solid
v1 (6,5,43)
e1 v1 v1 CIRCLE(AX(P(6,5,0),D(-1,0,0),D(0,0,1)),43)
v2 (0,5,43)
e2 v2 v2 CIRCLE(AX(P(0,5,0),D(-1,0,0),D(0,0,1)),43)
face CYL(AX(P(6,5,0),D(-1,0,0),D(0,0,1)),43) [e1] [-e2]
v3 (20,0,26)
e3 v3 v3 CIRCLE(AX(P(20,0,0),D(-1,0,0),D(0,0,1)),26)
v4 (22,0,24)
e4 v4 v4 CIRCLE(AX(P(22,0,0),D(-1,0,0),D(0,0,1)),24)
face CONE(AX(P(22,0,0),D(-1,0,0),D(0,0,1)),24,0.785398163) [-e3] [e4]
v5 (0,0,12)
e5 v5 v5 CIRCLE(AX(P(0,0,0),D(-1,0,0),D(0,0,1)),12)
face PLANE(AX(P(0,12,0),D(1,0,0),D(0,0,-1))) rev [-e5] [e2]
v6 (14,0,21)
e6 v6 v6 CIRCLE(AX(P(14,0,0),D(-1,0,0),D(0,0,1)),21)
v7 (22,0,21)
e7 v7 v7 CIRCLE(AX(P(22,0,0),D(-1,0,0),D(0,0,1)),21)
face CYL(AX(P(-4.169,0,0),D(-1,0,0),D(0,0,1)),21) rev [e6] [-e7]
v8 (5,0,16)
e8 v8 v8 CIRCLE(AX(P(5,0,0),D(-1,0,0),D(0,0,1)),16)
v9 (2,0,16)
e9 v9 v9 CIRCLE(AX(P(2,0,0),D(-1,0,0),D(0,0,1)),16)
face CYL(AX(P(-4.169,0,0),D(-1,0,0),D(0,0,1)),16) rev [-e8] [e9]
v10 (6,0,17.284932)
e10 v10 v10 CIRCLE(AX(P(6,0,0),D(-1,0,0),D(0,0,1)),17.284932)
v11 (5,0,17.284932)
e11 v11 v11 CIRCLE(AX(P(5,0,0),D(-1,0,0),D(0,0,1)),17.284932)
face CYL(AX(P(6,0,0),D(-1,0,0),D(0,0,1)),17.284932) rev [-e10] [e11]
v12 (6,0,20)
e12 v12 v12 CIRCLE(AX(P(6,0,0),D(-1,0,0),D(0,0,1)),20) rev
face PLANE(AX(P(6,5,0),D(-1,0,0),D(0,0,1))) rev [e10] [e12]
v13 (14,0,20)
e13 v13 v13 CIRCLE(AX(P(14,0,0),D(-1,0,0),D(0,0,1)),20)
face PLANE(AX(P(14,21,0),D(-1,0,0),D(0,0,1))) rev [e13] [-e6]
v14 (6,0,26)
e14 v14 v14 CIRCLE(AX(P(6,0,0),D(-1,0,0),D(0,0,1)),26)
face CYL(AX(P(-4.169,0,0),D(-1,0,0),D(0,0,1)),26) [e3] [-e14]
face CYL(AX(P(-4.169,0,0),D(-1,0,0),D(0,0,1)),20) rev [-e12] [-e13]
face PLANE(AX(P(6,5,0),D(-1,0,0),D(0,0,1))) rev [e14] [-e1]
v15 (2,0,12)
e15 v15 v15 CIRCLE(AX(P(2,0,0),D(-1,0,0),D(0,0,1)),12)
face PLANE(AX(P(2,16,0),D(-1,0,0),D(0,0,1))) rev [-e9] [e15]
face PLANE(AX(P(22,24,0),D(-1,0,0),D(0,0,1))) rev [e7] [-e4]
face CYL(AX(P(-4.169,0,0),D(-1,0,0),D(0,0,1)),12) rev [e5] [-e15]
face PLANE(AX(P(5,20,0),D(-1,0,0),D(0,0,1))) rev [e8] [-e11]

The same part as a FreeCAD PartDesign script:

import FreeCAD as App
import Part
import Sketcher
from FreeCAD import Vector

doc = App.newDocument("Part")
body = doc.addObject("PartDesign::Body", "Body")

# Sketch on XY plane
sketch1 = body.newObject("Sketcher::SketchObject", "Sketch")
sketch1.AttachmentSupport = (doc.getObject("XY_Plane"), [""])
sketch1.MapMode = "FlatFace"
sketch1.addGeometry([
    Part.LineSegment(Vector(0, 26, 0), Vector(0, 12, 0)),  # 0
    Part.LineSegment(Vector(0, 12, 0), Vector(2, 12, 0)),  # 1
    Part.LineSegment(Vector(2, 12, 0), Vector(2, 16, 0)),  # 2
    Part.LineSegment(Vector(2, 16, 0), Vector(5, 16, 0)),  # 3
    Part.LineSegment(Vector(5, 16, 0), Vector(5, 20, 0)),  # 4
    Part.LineSegment(Vector(5, 20, 0), Vector(14, 20, 0)),  # 5
    Part.LineSegment(Vector(14, 20, 0), Vector(14, 21, 0)),  # 6
    Part.LineSegment(Vector(14, 21, 0), Vector(22, 21, 0)),  # 7
    Part.LineSegment(Vector(22, 21, 0), Vector(22, 24, 0)),  # 8
    Part.LineSegment(Vector(22, 24, 0), Vector(20, 26, 0)),  # 9
    Part.LineSegment(Vector(20, 26, 0), Vector(0, 26, 0)),  # 10
], False)
sketch1.addConstraint([
    Sketcher.Constraint("Coincident", 0, 2, 1, 1),
    Sketcher.Constraint("Coincident", 1, 2, 2, 1),
    Sketcher.Constraint("Coincident", 2, 2, 3, 1),
    Sketcher.Constraint("Coincident", 3, 2, 4, 1),
    Sketcher.Constraint("Coincident", 4, 2, 5, 1),
    Sketcher.Constraint("Coincident", 5, 2, 6, 1),
    Sketcher.Constraint("Coincident", 6, 2, 7, 1),
    Sketcher.Constraint("Coincident", 7, 2, 8, 1),
    Sketcher.Constraint("Coincident", 8, 2, 9, 1),
    Sketcher.Constraint("Coincident", 9, 2, 10, 1),
    Sketcher.Constraint("Coincident", 10, 2, 0, 1),
    Sketcher.Constraint("Vertical", 0),
    Sketcher.Constraint("Horizontal", 1),
    Sketcher.Constraint("Vertical", 2),
    Sketcher.Constraint("Horizontal", 3),
    Sketcher.Constraint("Vertical", 4),
    Sketcher.Constraint("Horizontal", 5),
    Sketcher.Constraint("Vertical", 6),
    Sketcher.Constraint("Horizontal", 7),
    Sketcher.Constraint("Vertical", 8),
    Sketcher.Constraint("Horizontal", 10),
    Sketcher.Constraint("PointOnObject", 0, 2, -2),
    Sketcher.Constraint("Equal", 2, 4),
    Sketcher.Constraint("Equal", 3, 8),
    Sketcher.Constraint("DistanceX", 1, 1, 1, 2, 2.0),
    Sketcher.Constraint("DistanceX", 3, 1, 3, 2, 3.0),
    Sketcher.Constraint("DistanceX", 5, 1, 5, 2, 9.0),
    Sketcher.Constraint("DistanceX", 7, 1, 7, 2, 8.0),
    Sketcher.Constraint("DistanceX", 10, 2, 10, 1, 20.0),
    Sketcher.Constraint("DistanceY", 0, 2, 0, 1, 14.0),
    Sketcher.Constraint("DistanceY", 2, 1, 2, 2, 4.0),
    Sketcher.Constraint("DistanceY", 6, 1, 6, 2, 1.0),
    Sketcher.Constraint("DistanceY", -1, 1, 0, 2, 12.0),
])
revolution = body.newObject("PartDesign::Revolution", "Revolution")
revolution.Profile = sketch1
revolution.ReferenceAxis = (sketch1, ["H_Axis"])
revolution.Angle = 360

# Sketch on YZ plane
sketch2 = body.newObject("Sketcher::SketchObject", "Sketch001")
sketch2.AttachmentSupport = (doc.getObject("YZ_Plane"), [""])
sketch2.MapMode = "FlatFace"
sketch2.addGeometry([
    Part.Circle(Vector(5, 0, 0), Vector(0, 0, 1), 43),
    Part.Circle(Vector(0, 0, 0), Vector(0, 0, 1), 17),
], False)
sketch2.addConstraint([
    Sketcher.Constraint("Coincident", 1, 3, -1, 1),
    Sketcher.Constraint("PointOnObject", 0, 3, -1),
    Sketcher.Constraint("Diameter", 0, 86.0),
    Sketcher.Constraint("DistanceX", -1, 1, 0, 3, 5.0),
    Sketcher.Constraint("Diameter", 1, 34.569863),
])
pad1 = body.newObject("PartDesign::Pad", "Pad")
pad1.Profile = sketch2
pad1.Length = 6

doc.recompute()
